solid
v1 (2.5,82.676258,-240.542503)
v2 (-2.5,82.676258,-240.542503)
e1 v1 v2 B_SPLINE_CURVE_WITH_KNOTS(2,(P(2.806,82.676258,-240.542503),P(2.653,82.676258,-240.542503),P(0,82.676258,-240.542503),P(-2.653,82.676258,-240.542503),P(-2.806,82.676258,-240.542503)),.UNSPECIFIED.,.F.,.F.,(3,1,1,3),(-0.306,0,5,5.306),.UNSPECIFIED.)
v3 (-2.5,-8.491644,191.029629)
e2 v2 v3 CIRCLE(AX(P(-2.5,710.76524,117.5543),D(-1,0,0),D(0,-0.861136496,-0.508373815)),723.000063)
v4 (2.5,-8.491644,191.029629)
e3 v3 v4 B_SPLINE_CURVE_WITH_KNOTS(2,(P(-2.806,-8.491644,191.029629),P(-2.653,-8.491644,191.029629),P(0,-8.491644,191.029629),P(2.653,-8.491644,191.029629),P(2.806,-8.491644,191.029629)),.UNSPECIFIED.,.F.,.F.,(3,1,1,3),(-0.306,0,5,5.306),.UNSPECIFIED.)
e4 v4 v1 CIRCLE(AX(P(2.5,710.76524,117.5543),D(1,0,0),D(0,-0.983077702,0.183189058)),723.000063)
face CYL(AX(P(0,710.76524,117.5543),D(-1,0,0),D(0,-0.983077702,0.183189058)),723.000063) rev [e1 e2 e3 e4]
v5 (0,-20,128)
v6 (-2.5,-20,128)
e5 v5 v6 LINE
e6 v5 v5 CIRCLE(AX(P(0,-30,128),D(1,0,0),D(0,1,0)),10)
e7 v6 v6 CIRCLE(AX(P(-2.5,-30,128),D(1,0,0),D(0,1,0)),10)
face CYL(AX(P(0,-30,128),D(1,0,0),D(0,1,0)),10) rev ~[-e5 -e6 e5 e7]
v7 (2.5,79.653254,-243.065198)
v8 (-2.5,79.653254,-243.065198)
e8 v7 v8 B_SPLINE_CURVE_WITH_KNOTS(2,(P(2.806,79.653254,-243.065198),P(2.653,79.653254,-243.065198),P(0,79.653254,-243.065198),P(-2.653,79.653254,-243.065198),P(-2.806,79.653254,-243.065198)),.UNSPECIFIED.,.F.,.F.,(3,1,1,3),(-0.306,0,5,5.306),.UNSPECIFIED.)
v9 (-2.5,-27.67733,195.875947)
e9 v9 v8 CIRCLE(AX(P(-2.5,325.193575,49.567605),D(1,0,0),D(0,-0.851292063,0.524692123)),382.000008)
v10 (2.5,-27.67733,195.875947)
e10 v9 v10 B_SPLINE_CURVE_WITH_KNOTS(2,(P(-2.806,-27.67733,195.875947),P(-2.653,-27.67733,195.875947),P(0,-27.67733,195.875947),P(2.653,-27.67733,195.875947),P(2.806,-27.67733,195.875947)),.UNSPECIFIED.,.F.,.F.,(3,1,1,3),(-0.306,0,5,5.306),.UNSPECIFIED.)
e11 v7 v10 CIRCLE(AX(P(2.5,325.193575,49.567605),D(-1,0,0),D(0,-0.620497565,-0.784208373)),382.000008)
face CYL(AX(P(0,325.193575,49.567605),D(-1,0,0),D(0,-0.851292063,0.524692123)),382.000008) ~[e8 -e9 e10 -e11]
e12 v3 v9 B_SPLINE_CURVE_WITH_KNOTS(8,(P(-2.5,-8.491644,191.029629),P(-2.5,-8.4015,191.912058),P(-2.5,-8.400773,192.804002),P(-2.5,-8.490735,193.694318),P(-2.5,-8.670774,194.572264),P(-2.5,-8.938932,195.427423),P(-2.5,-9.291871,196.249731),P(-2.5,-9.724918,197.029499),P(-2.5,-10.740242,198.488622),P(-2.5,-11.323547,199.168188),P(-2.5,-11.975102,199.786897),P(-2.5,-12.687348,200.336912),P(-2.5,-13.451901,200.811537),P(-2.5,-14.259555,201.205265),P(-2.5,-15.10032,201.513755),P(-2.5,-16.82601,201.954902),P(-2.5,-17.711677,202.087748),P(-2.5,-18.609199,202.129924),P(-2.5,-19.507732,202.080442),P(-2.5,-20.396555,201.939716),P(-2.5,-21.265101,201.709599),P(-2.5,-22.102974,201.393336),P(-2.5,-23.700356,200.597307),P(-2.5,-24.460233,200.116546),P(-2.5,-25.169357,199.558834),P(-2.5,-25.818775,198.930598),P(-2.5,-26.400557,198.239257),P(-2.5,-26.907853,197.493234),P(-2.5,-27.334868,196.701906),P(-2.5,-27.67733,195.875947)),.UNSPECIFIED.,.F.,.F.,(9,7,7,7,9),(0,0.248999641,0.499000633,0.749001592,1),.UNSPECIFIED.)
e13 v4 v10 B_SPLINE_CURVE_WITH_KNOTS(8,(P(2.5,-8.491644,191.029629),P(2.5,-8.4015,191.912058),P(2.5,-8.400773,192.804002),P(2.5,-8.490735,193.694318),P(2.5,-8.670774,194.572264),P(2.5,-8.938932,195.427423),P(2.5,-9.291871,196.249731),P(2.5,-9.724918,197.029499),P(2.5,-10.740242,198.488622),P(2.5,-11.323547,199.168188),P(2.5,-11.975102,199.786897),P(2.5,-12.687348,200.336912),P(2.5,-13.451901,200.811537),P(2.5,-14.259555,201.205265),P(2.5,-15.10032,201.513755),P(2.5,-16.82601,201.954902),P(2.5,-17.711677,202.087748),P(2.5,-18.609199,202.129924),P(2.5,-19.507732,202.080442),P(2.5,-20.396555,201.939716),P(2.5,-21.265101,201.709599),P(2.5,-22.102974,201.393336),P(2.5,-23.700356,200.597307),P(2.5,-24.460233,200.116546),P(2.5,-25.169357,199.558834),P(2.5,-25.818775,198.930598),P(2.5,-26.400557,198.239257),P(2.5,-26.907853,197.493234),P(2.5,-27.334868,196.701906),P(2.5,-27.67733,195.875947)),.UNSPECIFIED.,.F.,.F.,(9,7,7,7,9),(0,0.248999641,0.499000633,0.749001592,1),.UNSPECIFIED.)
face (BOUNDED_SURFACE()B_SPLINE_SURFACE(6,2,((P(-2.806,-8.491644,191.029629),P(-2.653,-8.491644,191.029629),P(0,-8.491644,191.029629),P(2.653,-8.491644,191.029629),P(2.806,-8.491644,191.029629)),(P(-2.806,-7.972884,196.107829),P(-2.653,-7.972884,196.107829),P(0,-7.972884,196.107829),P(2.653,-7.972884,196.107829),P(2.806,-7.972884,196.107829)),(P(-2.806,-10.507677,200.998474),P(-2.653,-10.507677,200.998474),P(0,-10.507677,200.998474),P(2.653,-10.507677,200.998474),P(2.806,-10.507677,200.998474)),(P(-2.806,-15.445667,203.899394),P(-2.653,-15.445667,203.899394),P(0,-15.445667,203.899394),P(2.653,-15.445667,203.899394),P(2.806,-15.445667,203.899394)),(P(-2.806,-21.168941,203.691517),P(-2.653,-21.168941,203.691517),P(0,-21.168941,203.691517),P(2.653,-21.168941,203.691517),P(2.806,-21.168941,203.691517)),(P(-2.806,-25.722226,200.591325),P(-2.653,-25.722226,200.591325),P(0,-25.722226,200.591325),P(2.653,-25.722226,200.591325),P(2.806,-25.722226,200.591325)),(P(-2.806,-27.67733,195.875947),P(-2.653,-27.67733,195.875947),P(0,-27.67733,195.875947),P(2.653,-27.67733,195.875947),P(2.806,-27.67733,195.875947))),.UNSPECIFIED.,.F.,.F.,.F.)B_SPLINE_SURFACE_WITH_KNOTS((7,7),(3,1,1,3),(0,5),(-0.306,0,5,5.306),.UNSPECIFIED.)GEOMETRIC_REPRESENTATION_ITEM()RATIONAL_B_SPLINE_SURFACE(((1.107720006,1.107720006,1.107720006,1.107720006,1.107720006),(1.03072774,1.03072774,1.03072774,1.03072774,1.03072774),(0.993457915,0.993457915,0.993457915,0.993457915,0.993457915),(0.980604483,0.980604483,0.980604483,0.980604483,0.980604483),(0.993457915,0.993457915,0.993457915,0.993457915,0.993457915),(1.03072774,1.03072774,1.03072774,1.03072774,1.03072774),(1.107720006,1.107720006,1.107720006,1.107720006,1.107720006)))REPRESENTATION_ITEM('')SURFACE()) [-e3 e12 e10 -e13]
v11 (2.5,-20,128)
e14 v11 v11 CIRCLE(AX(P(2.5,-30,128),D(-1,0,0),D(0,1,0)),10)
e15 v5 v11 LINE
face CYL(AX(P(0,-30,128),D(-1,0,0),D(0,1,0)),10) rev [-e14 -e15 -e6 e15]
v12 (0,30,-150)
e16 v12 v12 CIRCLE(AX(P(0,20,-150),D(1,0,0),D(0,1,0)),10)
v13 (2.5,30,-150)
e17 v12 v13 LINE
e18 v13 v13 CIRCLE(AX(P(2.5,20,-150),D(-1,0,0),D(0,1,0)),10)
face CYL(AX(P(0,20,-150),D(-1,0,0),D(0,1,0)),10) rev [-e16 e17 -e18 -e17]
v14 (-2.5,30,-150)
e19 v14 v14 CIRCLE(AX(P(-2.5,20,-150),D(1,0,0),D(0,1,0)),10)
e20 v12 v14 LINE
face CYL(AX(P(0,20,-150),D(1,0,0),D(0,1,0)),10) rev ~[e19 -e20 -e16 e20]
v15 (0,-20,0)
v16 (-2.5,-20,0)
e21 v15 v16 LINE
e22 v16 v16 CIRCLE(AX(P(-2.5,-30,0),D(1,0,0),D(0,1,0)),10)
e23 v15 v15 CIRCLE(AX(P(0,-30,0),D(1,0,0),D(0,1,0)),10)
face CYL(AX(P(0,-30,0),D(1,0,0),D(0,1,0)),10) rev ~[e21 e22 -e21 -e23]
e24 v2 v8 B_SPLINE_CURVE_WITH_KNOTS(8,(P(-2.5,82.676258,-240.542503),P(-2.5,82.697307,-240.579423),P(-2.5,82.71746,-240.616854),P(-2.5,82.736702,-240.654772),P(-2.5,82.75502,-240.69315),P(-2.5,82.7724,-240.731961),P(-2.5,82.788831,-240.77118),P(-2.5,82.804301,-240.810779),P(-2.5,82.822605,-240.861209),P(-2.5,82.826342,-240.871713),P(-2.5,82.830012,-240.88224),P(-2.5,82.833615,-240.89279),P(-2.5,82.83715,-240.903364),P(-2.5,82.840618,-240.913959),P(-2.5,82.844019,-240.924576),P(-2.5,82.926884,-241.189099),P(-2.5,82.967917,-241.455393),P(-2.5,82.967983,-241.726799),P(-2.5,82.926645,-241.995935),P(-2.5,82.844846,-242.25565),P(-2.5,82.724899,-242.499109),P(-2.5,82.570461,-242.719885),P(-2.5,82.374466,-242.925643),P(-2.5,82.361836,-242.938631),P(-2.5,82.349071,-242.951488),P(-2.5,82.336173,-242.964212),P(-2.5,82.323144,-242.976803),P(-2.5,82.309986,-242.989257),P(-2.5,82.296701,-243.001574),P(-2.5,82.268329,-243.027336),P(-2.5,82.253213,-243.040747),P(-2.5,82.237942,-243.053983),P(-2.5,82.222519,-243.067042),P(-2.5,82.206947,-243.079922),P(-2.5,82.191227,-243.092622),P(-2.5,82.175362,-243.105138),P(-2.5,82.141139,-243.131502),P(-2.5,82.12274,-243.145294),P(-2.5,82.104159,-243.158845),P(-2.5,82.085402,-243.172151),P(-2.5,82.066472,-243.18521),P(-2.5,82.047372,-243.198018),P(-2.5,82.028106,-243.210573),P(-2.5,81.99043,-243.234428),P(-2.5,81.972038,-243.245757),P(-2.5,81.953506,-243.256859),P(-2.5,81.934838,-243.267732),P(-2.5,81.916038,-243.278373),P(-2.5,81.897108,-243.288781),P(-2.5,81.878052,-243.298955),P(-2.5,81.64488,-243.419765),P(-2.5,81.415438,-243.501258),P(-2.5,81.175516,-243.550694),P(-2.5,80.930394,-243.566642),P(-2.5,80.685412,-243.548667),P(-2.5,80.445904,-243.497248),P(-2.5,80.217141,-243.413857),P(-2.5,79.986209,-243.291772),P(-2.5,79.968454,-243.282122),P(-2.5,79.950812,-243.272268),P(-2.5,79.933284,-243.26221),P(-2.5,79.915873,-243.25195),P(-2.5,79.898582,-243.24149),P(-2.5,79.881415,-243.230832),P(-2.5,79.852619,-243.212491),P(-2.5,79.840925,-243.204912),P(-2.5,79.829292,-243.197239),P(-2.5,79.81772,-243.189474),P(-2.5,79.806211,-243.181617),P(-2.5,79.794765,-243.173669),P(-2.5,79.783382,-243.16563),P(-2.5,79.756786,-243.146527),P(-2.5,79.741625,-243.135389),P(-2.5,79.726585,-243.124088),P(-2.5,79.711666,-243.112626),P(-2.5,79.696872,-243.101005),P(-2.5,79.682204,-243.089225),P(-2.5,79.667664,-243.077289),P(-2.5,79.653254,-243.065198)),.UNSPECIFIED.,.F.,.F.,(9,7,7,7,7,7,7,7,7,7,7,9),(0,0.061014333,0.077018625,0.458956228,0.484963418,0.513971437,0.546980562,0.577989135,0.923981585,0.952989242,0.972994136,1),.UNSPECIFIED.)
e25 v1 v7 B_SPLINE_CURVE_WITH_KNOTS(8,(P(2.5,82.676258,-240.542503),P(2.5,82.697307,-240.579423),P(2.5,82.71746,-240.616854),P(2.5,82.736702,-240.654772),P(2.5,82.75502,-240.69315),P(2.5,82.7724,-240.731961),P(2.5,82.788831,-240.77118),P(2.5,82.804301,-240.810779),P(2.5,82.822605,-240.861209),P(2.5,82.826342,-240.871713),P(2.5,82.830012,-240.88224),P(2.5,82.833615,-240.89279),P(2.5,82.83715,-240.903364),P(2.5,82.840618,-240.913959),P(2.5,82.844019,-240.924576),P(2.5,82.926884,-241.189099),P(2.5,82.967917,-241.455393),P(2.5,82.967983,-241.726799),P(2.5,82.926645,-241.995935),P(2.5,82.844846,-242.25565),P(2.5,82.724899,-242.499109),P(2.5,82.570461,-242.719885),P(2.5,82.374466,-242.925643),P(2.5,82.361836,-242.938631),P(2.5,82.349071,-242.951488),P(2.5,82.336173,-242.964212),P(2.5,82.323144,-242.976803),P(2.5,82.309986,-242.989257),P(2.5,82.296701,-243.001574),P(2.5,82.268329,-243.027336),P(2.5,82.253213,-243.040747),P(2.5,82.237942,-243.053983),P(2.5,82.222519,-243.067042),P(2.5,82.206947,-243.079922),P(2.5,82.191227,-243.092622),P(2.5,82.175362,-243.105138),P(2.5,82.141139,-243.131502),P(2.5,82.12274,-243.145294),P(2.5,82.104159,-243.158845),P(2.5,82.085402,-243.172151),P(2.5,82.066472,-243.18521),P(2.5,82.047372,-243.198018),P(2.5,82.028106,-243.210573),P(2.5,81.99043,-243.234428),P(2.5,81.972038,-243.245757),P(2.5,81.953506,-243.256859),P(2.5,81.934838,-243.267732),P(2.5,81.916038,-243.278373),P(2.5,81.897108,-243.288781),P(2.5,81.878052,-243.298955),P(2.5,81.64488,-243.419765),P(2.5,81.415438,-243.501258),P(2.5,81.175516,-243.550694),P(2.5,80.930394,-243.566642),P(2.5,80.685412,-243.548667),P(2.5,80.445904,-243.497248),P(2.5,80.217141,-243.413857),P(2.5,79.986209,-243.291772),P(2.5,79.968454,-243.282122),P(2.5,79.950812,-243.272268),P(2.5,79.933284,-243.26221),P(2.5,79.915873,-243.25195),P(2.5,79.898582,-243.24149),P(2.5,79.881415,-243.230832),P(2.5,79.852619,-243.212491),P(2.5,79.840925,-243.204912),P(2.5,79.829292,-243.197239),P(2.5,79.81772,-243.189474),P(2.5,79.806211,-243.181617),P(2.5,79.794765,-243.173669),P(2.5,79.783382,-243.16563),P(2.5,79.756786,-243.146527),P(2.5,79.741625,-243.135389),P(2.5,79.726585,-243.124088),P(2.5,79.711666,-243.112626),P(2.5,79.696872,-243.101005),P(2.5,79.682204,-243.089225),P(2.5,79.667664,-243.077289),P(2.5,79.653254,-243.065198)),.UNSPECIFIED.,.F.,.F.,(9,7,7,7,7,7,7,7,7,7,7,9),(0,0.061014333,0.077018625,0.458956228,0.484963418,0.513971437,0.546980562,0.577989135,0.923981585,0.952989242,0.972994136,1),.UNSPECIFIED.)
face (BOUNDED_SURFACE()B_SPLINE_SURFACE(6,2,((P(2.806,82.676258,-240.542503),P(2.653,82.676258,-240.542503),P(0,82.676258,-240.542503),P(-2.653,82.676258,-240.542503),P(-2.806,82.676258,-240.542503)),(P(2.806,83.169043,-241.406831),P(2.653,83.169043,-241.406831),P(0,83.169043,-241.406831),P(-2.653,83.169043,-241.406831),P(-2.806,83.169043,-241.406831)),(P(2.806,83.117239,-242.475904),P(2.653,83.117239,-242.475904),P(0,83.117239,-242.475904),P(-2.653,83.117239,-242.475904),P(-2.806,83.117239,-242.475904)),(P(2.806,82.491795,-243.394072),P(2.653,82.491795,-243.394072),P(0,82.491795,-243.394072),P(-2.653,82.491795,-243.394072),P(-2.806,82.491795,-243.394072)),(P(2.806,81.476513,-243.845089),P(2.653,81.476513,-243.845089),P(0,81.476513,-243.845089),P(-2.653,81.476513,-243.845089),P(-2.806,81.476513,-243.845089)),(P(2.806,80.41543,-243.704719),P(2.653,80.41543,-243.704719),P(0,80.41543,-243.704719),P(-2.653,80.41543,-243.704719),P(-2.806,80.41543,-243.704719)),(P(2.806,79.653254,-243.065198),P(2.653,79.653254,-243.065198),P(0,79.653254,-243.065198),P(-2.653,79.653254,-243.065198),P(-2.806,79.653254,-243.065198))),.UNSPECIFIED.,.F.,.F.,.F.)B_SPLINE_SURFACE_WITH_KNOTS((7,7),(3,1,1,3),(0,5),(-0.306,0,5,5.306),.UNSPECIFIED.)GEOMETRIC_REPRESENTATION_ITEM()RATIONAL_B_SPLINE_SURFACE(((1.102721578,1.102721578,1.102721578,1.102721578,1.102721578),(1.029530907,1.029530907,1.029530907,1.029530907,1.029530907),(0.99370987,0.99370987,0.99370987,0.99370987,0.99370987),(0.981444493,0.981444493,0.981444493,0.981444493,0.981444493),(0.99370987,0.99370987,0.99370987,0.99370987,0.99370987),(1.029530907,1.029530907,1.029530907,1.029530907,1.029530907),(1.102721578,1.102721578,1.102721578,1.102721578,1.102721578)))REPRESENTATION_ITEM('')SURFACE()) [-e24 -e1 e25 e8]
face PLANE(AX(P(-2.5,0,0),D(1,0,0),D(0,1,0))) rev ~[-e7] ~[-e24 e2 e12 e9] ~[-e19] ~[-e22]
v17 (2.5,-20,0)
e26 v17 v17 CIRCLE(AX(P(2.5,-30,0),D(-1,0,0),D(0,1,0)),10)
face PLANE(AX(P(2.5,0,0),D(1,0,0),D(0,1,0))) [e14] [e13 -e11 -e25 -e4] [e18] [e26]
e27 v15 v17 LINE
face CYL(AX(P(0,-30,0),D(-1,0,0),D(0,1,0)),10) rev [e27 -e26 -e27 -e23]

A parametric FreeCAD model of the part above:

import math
import FreeCAD as App
import Part
import Sketcher

V = App.Vector


def edges_at(feature, points):
    """Names of the edges that pass closest to the given points."""
    edges = feature.Shape.Edges
    near = lambda p: min(range(len(edges)), key=lambda i: edges[i].distToShape(Part.Vertex(*p))[0])
    return sorted({f"Edge{near(p) + 1}" for p in points})

doc = App.newDocument("Part")
body = doc.addObject("PartDesign::Body", "Body")

# Sketch on YZ plane
sketch1 = body.newObject("Sketcher::SketchObject", "Sketch")
sketch1.AttachmentSupport = (doc.getObject("YZ_Plane"), [""])
sketch1.MapMode = "FlatFace"
sketch1.addGeometry([
    Part.ArcOfCircle(Part.Circle(V(325.1936, 49.5676, 0), V(0, 0, 1), 382.000032), math.radians(148.352482), math.radians(231.647518)),
    Part.ArcOfCircle(Part.Circle(V(710.7652, 117.5543, 0), V(0, 0, 1), 723.000023), math.radians(169.444431), math.radians(210.555573)),
], False)
sketch1.addConstraint([
    Sketcher.Constraint("Coincident", 0, 1, 1, 1),
    Sketcher.Constraint("Coincident", 1, 2, 0, 2),
    Sketcher.Constraint("PointOnObject", 0, 1, -2),
    Sketcher.Constraint("Radius", 0, 382.0),
    Sketcher.Constraint("Radius", 1, 723.0),
    Sketcher.Constraint("DistanceY", -1, 1, 0, 1, 250.0),
    Sketcher.Constraint("DistanceY", 1, 2, -1, 1, 250.0),
    Sketcher.Constraint("DistanceX", -1, 1, 0, 3, 325.1936),
])
pad1 = body.newObject("PartDesign::Pad", "Pad")
pad1.Profile = sketch1
pad1.Length = 5
pad1.Midplane = True

# Sketch on YZ plane
sketch2 = body.newObject("Sketcher::SketchObject", "Sketch001")
sketch2.AttachmentSupport = (doc.getObject("YZ_Plane"), [""])
sketch2.MapMode = "FlatFace"
sketch2.addGeometry([
    Part.Circle(V(-30, 128, 0), V(0, 0, 1), 10),
    Part.Circle(V(-30, 0, 0), V(0, 0, 1), 10),
    Part.Circle(V(20, -150, 0), V(0, 0, 1), 10),
], False)
sketch2.addConstraint([
    Sketcher.Constraint("Equal", 0, 1),
    Sketcher.Constraint("Equal", 1, 2),
    Sketcher.Constraint("PointOnObject", 1, 3, -1),
    Sketcher.Constraint("Vertical", 0, 3, 1, 3),
    Sketcher.Constraint("Diameter", 0, 20.0),
    Sketcher.Constraint("DistanceX", 0, 3, -1, 1, 30.0),
    Sketcher.Constraint("DistanceY", -1, 1, 0, 3, 128.0),
    Sketcher.Constraint("DistanceX", -1, 1, 2, 3, 20.0),
    Sketcher.Constraint("DistanceY", 2, 3, -1, 1, 150.0),
])
pocket1 = body.newObject("PartDesign::Pocket", "Pocket")
pocket1.Profile = sketch2
pocket1.Type = "ThroughAll"
pocket1.Midplane = True
doc.recompute()

fillet = body.newObject("PartDesign::Fillet", "Fillet")
fillet.Base = (pocket1, edges_at(pocket1, [(0, 0, 250)]))
fillet.Radius = 10
doc.recompute()

fillet2 = body.newObject("PartDesign::Fillet", "Fillet001")
fillet2.Base = (fillet, edges_at(fillet, [(0, 88.163, -250)]))
fillet2.Radius = 2

doc.recompute()
